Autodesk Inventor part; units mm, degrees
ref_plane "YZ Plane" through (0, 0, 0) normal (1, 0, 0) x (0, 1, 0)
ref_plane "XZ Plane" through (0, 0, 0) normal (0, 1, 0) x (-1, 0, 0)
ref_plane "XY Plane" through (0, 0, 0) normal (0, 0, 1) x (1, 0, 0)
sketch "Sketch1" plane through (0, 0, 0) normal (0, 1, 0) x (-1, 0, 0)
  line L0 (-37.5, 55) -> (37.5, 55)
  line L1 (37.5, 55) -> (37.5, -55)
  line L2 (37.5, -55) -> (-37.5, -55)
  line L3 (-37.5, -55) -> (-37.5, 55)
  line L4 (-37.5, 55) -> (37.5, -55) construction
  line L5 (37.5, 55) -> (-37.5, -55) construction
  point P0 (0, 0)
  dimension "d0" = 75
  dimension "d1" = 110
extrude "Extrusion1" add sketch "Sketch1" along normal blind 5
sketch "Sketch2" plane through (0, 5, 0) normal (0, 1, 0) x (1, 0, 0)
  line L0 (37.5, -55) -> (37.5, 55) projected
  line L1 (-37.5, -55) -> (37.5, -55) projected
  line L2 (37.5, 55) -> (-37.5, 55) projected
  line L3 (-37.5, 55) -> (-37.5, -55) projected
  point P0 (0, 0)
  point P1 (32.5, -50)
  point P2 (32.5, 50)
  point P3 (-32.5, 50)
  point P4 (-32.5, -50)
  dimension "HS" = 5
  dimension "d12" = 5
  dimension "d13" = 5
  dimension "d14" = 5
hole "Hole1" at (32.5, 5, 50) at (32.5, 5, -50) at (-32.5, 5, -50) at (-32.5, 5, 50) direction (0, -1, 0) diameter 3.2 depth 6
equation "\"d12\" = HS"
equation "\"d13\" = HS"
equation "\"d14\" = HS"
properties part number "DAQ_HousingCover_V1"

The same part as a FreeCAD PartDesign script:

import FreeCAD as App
import Part
import Sketcher
from FreeCAD import Vector
Q = App.Units.Quantity

doc = App.newDocument("Part")
params = doc.addObject("Spreadsheet::Sheet", "Params")
for row, (alias, value) in enumerate([
    ("sketch1_width", "75 mm"),
    ("sketch1_height", "110 mm"),
    ("pad1_length", "5 mm"),
    ("sketch2_diameter", "3.2 mm"),
    ("hole_diameter", "3.2 mm"),
    ("hole_depth", "6 mm"),
], start=1):
    params.set(f"A{row}", alias)
    params.set(f"B{row}", "=" + value)
    params.setAlias(f"B{row}", alias)

body = doc.addObject("PartDesign::Body", "Body")

# Sketch on XZ plane
sketch1 = body.newObject("Sketcher::SketchObject", "Sketch")
sketch1.AttachmentSupport = (doc.getObject("XZ_Plane"), [""])
sketch1.MapMode = "FlatFace"
sketch1.addGeometry([
    Part.LineSegment(Vector(-37.5, 55, 0), Vector(37.5, 55, 0)),
    Part.LineSegment(Vector(37.5, 55, 0), Vector(37.5, -55, 0)),
    Part.LineSegment(Vector(37.5, -55, 0), Vector(-37.5, -55, 0)),
    Part.LineSegment(Vector(-37.5, -55, 0), Vector(-37.5, 55, 0)),
], False)
sketch1.addConstraint([
    Sketcher.Constraint("Coincident", 0, 2, 1, 1),
    Sketcher.Constraint("Coincident", 1, 2, 2, 1),
    Sketcher.Constraint("Coincident", 2, 2, 3, 1),
    Sketcher.Constraint("Coincident", 3, 2, 0, 1),
    Sketcher.Constraint("Horizontal", 0),
    Sketcher.Constraint("Vertical", 1),
    Sketcher.Constraint("Horizontal", 2),
    Sketcher.Constraint("Vertical", 3),
    Sketcher.Constraint("Symmetric", 0, 2, 2, 2, -1, 1),
    Sketcher.Constraint("DistanceX", 0, 1, 0, 2, Q("75 mm")),
    Sketcher.Constraint("DistanceY", 1, 2, 1, 1, Q("110 mm")),
])
sketch1.setExpression("Constraints[9]", "Params.sketch1_width")
sketch1.setExpression("Constraints[10]", "Params.sketch1_height")
pad1 = body.newObject("PartDesign::Pad", "Pad")
pad1.Profile = sketch1
pad1.setExpression("Length", "Params.pad1_length")
pad1.Reversed = True

# Sketch on XZ plane
sketch2 = body.newObject("Sketcher::SketchObject", "Sketch001")
sketch2.AttachmentSupport = (doc.getObject("XZ_Plane"), [""])
sketch2.MapMode = "FlatFace"
sketch2.AttachmentOffset = App.Placement(Vector(0, 0, -5), App.Rotation())
sketch2.addGeometry([
    Part.Circle(Vector(32.5, 50, 0), Vector(0, 0, 1), 1.6),
    Part.Circle(Vector(32.5, -50, 0), Vector(0, 0, 1), 1.6),
    Part.Circle(Vector(-32.5, -50, 0), Vector(0, 0, 1), 1.6),
    Part.Circle(Vector(-32.5, 50, 0), Vector(0, 0, 1), 1.6),
], False)
sketch2.addConstraint([
    Sketcher.Constraint("Equal", 0, 1),
    Sketcher.Constraint("Equal", 1, 2),
    Sketcher.Constraint("Equal", 2, 3),
    Sketcher.Constraint("Symmetric", 0, 3, 2, 3, -1, 1),
    Sketcher.Constraint("Symmetric", 1, 3, 3, 3, -1, 1),
    Sketcher.Constraint("Symmetric", 1, 3, 2, 3, -2),
    Sketcher.Constraint("Diameter", 0, Q("3.2 mm")),
    Sketcher.Constraint("DistanceY", -1, 1, 0, 3, Q("50 mm")),
    Sketcher.Constraint("DistanceX", 2, 3, 1, 3, Q("65 mm")),
])
sketch2.setExpression("Constraints[6]", "Params.sketch2_diameter")
doc.recompute()
hole = body.newObject("PartDesign::Hole", "Hole")
hole.Profile = sketch2
hole.ThreadType = "None"
hole.setExpression("Diameter", "Params.hole_diameter")
hole.DepthType = "Dimension"
hole.setExpression("Depth", "Params.hole_depth")
hole.DrillPoint = "Flat"
hole.Reversed = True

doc.recompute()
